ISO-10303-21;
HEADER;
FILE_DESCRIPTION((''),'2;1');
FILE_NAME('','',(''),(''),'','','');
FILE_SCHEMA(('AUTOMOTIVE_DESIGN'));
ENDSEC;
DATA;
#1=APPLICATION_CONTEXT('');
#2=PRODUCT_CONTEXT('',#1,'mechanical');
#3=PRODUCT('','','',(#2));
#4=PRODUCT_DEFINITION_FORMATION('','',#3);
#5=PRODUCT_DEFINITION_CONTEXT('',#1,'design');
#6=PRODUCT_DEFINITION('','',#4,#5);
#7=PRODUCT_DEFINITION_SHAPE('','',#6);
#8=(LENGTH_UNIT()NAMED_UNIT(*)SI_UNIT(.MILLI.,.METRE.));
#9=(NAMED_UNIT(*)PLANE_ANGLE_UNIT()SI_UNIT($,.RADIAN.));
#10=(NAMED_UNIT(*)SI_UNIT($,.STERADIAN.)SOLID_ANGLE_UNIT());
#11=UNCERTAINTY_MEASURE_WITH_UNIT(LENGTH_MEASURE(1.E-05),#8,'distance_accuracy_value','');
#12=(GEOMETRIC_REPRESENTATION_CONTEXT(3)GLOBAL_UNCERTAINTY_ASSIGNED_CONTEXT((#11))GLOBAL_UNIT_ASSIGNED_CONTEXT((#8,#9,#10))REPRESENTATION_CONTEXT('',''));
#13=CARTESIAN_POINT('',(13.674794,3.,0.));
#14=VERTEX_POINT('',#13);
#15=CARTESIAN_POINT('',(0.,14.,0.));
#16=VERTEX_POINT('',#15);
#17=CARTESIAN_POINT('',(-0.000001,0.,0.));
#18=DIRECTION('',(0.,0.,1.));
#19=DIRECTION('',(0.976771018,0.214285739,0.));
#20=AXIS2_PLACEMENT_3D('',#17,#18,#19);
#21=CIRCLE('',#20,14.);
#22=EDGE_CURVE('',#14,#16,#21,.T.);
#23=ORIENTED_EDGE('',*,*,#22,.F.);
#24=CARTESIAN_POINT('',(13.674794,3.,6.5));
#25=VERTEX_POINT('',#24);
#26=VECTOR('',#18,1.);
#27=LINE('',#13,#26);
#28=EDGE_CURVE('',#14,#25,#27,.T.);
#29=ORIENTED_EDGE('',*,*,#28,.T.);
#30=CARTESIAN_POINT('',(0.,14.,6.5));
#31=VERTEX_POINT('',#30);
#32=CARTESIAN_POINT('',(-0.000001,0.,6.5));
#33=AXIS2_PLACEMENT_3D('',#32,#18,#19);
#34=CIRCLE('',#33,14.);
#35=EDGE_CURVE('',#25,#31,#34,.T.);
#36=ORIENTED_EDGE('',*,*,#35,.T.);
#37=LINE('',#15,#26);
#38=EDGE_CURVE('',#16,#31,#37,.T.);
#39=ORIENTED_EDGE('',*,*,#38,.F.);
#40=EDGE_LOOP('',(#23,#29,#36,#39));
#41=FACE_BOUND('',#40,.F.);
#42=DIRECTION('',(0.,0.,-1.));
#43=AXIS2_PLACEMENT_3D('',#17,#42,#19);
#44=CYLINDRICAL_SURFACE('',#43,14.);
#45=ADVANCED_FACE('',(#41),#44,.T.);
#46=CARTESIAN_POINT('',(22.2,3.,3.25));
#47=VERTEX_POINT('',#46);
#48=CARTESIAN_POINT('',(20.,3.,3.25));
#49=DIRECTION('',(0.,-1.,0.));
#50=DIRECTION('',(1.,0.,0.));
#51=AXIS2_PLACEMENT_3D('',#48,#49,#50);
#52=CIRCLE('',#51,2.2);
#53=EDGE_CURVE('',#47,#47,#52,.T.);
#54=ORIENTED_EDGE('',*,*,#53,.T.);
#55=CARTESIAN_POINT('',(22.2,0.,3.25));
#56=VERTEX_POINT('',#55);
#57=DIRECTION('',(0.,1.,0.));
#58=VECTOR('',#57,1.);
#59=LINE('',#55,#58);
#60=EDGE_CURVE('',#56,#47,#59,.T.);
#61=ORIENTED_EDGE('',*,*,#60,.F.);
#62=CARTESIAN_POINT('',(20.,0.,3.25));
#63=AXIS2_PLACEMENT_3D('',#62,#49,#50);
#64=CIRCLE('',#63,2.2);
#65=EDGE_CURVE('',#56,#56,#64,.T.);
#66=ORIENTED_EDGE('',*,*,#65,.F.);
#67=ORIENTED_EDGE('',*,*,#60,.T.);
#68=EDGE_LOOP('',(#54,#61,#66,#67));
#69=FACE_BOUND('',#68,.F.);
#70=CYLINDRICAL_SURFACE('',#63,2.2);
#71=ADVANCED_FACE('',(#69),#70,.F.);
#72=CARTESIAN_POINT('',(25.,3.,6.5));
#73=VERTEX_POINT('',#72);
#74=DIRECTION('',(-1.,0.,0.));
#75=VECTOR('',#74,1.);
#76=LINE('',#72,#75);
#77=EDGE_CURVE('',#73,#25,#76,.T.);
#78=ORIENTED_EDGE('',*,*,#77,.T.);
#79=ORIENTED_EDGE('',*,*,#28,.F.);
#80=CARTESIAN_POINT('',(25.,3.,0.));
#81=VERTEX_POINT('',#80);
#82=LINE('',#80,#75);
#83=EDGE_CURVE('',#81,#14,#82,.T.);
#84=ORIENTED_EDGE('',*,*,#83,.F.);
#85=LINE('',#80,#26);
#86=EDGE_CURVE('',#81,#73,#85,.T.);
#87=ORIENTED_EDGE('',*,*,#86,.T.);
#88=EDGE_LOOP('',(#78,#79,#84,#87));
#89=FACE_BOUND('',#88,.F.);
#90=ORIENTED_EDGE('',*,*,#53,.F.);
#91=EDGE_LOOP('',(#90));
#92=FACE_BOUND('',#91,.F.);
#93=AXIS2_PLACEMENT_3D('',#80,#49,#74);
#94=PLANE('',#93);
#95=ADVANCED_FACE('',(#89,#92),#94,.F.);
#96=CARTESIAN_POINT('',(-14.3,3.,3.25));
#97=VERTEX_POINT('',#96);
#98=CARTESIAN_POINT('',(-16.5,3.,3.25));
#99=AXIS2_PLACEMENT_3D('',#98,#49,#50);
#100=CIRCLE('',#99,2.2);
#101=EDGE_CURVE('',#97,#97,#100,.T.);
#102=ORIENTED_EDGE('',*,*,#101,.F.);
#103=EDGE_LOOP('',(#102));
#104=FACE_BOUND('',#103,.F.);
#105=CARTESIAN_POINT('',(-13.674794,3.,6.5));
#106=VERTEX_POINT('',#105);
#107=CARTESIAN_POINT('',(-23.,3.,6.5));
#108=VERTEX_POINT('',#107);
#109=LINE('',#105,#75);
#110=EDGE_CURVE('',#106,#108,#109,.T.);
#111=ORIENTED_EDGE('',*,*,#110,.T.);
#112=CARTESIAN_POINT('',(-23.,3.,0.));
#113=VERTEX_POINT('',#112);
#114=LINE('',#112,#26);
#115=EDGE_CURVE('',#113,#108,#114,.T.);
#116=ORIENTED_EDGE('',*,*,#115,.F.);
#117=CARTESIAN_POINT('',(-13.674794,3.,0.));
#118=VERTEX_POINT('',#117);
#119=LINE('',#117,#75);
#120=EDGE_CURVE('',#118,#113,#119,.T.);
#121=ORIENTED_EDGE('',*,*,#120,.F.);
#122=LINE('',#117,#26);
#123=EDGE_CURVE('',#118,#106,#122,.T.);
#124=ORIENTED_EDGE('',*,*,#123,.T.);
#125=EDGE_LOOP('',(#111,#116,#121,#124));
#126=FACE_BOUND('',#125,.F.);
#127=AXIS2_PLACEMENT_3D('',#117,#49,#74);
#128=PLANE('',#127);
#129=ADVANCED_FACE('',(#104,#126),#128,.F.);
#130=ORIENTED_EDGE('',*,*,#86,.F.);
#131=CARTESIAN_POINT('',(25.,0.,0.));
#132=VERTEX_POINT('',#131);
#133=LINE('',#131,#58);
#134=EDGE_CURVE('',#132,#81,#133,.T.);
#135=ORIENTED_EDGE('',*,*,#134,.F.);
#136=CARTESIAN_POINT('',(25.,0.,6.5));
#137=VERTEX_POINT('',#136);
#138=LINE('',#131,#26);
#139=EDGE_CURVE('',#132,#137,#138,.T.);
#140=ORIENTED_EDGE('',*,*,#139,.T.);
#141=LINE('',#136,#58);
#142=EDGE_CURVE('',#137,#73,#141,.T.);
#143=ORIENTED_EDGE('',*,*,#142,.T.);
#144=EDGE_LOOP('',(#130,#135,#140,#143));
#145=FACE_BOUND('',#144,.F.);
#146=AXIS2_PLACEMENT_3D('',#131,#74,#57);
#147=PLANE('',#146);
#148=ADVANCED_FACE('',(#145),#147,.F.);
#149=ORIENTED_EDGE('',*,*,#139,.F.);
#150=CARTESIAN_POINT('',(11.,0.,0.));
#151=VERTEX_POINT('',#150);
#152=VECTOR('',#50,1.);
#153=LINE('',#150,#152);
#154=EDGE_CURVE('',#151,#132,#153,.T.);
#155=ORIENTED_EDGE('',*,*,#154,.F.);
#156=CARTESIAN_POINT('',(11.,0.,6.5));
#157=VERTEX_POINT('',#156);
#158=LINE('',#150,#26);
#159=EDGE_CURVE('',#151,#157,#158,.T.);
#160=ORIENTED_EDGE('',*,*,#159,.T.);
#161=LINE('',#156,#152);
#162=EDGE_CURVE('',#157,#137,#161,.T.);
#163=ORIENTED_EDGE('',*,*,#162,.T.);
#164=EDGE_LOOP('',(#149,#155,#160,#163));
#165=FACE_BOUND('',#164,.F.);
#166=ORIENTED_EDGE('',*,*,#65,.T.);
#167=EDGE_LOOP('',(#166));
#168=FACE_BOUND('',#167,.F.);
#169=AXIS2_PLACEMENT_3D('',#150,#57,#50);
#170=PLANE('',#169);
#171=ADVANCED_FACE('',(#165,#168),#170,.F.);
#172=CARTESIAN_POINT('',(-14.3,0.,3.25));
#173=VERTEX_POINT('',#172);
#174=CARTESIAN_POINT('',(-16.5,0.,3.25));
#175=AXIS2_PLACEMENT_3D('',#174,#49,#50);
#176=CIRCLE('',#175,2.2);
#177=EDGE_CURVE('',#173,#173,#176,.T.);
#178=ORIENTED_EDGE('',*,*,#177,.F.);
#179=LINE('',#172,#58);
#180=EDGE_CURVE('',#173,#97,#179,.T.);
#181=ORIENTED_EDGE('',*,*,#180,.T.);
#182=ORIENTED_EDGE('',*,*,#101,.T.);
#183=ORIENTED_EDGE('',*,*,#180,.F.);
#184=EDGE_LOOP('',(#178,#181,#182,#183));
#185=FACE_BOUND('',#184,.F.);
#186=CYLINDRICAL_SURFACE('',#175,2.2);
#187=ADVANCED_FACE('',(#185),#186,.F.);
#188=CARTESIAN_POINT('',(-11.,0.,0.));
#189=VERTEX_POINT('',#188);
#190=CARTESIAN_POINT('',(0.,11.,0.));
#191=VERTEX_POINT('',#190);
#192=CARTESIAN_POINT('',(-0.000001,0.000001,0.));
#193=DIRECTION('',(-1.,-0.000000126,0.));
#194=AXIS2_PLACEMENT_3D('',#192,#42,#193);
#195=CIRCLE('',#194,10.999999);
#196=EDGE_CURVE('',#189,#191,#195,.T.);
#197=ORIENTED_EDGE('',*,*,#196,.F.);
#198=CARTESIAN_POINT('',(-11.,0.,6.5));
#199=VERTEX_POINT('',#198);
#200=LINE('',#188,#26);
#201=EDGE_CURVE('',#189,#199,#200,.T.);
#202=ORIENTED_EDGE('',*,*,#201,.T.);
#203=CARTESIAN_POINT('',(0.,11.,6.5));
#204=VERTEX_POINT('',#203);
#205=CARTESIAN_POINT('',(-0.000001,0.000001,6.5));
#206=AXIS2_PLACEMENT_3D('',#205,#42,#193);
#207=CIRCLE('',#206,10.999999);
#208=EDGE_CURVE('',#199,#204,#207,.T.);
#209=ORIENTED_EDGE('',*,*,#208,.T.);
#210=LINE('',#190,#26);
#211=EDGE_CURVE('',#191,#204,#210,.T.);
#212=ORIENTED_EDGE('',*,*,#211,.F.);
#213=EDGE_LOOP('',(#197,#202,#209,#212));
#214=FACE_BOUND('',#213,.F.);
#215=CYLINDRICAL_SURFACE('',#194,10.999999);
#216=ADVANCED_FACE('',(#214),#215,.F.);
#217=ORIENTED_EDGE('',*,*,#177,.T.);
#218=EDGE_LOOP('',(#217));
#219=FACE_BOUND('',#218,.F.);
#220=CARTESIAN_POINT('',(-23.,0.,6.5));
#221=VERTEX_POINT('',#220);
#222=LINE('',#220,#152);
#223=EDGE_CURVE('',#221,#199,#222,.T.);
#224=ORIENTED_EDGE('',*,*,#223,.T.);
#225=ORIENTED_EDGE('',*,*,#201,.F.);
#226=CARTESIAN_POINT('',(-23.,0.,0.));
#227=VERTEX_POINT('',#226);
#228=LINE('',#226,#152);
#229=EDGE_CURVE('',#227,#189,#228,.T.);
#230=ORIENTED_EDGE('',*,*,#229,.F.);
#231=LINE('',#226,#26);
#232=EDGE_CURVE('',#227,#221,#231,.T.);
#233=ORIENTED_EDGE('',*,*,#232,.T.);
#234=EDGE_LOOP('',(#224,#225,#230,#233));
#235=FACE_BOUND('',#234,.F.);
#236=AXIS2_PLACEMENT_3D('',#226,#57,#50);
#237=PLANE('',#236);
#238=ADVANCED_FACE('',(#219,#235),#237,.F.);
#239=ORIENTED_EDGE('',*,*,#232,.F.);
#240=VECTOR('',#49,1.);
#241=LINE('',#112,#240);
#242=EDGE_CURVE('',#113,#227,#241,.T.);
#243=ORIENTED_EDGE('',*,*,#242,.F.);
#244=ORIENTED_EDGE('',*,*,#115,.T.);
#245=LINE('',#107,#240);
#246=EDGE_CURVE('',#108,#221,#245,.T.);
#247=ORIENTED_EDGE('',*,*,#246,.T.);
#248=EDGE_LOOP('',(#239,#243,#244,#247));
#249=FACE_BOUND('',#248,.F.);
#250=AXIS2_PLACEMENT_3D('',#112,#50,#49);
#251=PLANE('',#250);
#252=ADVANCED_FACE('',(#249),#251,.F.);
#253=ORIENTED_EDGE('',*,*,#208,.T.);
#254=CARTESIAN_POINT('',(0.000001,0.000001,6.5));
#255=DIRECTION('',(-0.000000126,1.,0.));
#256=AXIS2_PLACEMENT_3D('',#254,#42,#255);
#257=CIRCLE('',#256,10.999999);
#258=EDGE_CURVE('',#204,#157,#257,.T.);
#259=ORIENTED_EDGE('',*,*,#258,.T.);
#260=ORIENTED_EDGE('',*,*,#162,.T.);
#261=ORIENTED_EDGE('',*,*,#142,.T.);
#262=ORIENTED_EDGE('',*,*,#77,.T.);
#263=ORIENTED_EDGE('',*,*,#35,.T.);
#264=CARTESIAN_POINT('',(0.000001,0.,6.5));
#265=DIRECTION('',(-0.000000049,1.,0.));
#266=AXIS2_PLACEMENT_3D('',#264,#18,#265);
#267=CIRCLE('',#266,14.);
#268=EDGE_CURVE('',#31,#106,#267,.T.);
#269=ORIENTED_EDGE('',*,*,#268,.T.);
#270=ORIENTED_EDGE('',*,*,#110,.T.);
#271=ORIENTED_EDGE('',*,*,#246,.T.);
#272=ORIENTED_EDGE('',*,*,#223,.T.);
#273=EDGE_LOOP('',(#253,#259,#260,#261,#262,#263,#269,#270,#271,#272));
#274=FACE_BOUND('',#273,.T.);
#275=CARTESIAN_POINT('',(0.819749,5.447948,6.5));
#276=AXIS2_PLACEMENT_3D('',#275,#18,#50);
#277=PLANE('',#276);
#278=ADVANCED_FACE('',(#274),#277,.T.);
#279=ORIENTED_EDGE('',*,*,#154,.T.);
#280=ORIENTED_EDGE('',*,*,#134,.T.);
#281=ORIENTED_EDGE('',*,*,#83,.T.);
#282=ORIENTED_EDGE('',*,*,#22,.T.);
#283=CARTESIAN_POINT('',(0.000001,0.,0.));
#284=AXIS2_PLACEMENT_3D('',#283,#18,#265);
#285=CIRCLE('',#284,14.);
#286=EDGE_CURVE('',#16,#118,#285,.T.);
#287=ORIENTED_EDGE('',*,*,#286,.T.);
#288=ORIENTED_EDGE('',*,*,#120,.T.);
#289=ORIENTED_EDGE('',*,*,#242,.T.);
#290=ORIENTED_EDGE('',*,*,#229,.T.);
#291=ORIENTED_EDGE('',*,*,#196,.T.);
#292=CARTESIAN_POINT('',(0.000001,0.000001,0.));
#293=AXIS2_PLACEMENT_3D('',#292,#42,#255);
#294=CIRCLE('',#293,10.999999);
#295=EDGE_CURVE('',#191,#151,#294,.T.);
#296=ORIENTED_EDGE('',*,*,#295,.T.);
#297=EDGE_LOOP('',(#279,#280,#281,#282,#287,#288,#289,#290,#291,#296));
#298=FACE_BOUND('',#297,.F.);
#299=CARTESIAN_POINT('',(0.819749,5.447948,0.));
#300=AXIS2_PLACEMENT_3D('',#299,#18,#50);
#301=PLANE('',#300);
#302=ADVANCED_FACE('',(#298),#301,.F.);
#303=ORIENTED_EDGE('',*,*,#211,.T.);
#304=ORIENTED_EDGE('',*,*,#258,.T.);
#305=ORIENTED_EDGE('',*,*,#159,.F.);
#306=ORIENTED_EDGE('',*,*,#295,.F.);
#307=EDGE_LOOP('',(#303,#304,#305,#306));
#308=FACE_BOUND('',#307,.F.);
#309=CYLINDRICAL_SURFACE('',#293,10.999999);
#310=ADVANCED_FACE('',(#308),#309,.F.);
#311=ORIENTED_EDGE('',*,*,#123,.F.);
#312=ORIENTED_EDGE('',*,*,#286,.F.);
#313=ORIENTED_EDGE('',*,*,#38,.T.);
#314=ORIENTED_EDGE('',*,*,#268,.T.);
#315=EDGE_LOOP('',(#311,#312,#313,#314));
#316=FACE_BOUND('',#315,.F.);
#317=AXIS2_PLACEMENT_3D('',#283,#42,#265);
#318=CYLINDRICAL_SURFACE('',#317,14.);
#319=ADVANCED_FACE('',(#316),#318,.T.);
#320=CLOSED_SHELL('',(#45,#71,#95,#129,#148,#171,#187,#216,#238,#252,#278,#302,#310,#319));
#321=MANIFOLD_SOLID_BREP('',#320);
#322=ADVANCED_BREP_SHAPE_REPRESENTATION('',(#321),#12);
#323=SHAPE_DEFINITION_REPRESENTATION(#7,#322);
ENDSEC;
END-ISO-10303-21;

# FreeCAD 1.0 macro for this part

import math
import FreeCAD as App
import Part
import Sketcher
Q = App.Units.Quantity

doc = App.newDocument("Part")
params = doc.addObject("Spreadsheet::Sheet", "Params")
for row, (alias, value) in enumerate([
    ("sketch1_radius", "10.999999 mm"),
    ("sketch1_radius2", "14 mm"),
    ("sketch1_width", "14 mm"),
    ("sketch1_width2", "12 mm"),
    ("sketch1_height", "3 mm"),
    ("pad1_length", "6.5 mm"),
    ("sketch2_diameter", "4.4 mm"),
    ("pocket1_length", "25 mm"),
], start=1):
    params.set(f"A{row}", alias)
    params.set(f"B{row}", "=" + value)
    params.setAlias(f"B{row}", alias)

body = doc.addObject("PartDesign::Body", "Body")

# Sketch on XY plane
sketch1 = body.newObject("Sketcher::SketchObject", "Sketch")
sketch1.AttachmentSupport = (doc.getObject("XY_Plane"), [""])
sketch1.MapMode = "FlatFace"
sketch1.addGeometry([
    Part.ArcOfCircle(Part.Circle(App.Vector(0, 0, 0), App.Vector(0, 0, 1), 11), math.radians(0), math.radians(90)),  # 0
    Part.LineSegment(App.Vector(11, 0, 0), App.Vector(25, 0, 0)),  # 1
    Part.LineSegment(App.Vector(25, 0, 0), App.Vector(25, 3, 0)),  # 2
    Part.LineSegment(App.Vector(25, 3, 0), App.Vector(13.7, 3, 0)),  # 3
    Part.ArcOfCircle(Part.Circle(App.Vector(0, 0, 0), App.Vector(0, 0, 1), 14), math.radians(12), math.radians(90)),  # 4
    Part.ArcOfCircle(Part.Circle(App.Vector(0, 0, 0), App.Vector(0, 0, 1), 14), math.radians(90), math.radians(168)),  # 5
    Part.LineSegment(App.Vector(-13.7, 3, 0), App.Vector(-23, 3, 0)),  # 6
    Part.LineSegment(App.Vector(-23, 3, 0), App.Vector(-23, 0, 0)),  # 7
    Part.LineSegment(App.Vector(-23, 0, 0), App.Vector(-11, 0, 0)),  # 8
    Part.ArcOfCircle(Part.Circle(App.Vector(0, 0, 0), App.Vector(0, 0, 1), 11), math.radians(90), math.radians(180)),  # 9
], False)
sketch1.addConstraint([
    Sketcher.Constraint("Coincident", 0, 1, 1, 1),
    Sketcher.Constraint("Coincident", 1, 2, 2, 1),
    Sketcher.Constraint("Coincident", 2, 2, 3, 1),
    Sketcher.Constraint("Coincident", 3, 2, 4, 1),
    Sketcher.Constraint("Tangent", 4, 2, 5, 1),
    Sketcher.Constraint("Coincident", 5, 2, 6, 1),
    Sketcher.Constraint("Coincident", 6, 2, 7, 1),
    Sketcher.Constraint("Coincident", 7, 2, 8, 1),
    Sketcher.Constraint("Coincident", 8, 2, 9, 2),
    Sketcher.Constraint("Tangent", 9, 1, 0, 2),
    Sketcher.Constraint("Horizontal", 1),
    Sketcher.Constraint("Vertical", 2),
    Sketcher.Constraint("Horizontal", 3),
    Sketcher.Constraint("Horizontal", 6),
    Sketcher.Constraint("Vertical", 7),
    Sketcher.Constraint("Horizontal", 8),
    Sketcher.Constraint("Coincident", 0, 3, -1, 1),
    Sketcher.Constraint("Coincident", 4, 3, -1, 1),
    Sketcher.Constraint("Equal", 4, 5),
    Sketcher.Constraint("Equal", 0, 9),
    Sketcher.Constraint("PointOnObject", 0, 1, -1),
    Sketcher.Constraint("PointOnObject", 4, 2, -2),
    Sketcher.Constraint("PointOnObject", 7, 2, -1),
    Sketcher.Constraint("PointOnObject", 9, 1, -2),
    Sketcher.Constraint("Horizontal", 3, 2, 5, 2),
    Sketcher.Constraint("Radius", 0, Q("10.999999 mm")),
    Sketcher.Constraint("Radius", 4, Q("14 mm")),
    Sketcher.Constraint("DistanceX", 1, 1, 1, 2, Q("14 mm")),
    Sketcher.Constraint("DistanceX", 8, 1, 8, 2, Q("12 mm")),
    Sketcher.Constraint("DistanceY", 2, 1, 2, 2, Q("3 mm")),
])
sketch1.setExpression("Constraints[25]", "Params.sketch1_radius")
sketch1.setExpression("Constraints[26]", "Params.sketch1_radius2")
sketch1.setExpression("Constraints[27]", "Params.sketch1_width")
sketch1.setExpression("Constraints[28]", "Params.sketch1_width2")
sketch1.setExpression("Constraints[29]", "Params.sketch1_height")
pad1 = body.newObject("PartDesign::Pad", "Pad")
pad1.Profile = sketch1
pad1.setExpression("Length", "Params.pad1_length")

# Sketch on XZ plane
sketch2 = body.newObject("Sketcher::SketchObject", "Sketch001")
sketch2.AttachmentSupport = (doc.getObject("XZ_Plane"), [""])
sketch2.MapMode = "FlatFace"
sketch2.addGeometry([
    Part.Circle(App.Vector(-16.5, 3.2, 0), App.Vector(0, 0, 1), 2.2),
    Part.Circle(App.Vector(20, 3.2, 0), App.Vector(0, 0, 1), 2.2),
], False)
sketch2.addConstraint([
    Sketcher.Constraint("Equal", 0, 1),
    Sketcher.Constraint("Horizontal", 0, 3, 1, 3),
    Sketcher.Constraint("Diameter", 0, Q("4.4 mm")),
    Sketcher.Constraint("DistanceX", -1, 1, 1, 3, Q("20 mm")),
    Sketcher.Constraint("DistanceX", 0, 3, -1, 1, Q("16.5 mm")),
    Sketcher.Constraint("DistanceY", -1, 1, 0, 3, Q("3.25 mm")),
])
sketch2.setExpression("Constraints[2]", "Params.sketch2_diameter")
pocket1 = body.newObject("PartDesign::Pocket", "Pocket")
pocket1.Profile = sketch2
pocket1.setExpression("Length", "Params.pocket1_length")

doc.recompute()
